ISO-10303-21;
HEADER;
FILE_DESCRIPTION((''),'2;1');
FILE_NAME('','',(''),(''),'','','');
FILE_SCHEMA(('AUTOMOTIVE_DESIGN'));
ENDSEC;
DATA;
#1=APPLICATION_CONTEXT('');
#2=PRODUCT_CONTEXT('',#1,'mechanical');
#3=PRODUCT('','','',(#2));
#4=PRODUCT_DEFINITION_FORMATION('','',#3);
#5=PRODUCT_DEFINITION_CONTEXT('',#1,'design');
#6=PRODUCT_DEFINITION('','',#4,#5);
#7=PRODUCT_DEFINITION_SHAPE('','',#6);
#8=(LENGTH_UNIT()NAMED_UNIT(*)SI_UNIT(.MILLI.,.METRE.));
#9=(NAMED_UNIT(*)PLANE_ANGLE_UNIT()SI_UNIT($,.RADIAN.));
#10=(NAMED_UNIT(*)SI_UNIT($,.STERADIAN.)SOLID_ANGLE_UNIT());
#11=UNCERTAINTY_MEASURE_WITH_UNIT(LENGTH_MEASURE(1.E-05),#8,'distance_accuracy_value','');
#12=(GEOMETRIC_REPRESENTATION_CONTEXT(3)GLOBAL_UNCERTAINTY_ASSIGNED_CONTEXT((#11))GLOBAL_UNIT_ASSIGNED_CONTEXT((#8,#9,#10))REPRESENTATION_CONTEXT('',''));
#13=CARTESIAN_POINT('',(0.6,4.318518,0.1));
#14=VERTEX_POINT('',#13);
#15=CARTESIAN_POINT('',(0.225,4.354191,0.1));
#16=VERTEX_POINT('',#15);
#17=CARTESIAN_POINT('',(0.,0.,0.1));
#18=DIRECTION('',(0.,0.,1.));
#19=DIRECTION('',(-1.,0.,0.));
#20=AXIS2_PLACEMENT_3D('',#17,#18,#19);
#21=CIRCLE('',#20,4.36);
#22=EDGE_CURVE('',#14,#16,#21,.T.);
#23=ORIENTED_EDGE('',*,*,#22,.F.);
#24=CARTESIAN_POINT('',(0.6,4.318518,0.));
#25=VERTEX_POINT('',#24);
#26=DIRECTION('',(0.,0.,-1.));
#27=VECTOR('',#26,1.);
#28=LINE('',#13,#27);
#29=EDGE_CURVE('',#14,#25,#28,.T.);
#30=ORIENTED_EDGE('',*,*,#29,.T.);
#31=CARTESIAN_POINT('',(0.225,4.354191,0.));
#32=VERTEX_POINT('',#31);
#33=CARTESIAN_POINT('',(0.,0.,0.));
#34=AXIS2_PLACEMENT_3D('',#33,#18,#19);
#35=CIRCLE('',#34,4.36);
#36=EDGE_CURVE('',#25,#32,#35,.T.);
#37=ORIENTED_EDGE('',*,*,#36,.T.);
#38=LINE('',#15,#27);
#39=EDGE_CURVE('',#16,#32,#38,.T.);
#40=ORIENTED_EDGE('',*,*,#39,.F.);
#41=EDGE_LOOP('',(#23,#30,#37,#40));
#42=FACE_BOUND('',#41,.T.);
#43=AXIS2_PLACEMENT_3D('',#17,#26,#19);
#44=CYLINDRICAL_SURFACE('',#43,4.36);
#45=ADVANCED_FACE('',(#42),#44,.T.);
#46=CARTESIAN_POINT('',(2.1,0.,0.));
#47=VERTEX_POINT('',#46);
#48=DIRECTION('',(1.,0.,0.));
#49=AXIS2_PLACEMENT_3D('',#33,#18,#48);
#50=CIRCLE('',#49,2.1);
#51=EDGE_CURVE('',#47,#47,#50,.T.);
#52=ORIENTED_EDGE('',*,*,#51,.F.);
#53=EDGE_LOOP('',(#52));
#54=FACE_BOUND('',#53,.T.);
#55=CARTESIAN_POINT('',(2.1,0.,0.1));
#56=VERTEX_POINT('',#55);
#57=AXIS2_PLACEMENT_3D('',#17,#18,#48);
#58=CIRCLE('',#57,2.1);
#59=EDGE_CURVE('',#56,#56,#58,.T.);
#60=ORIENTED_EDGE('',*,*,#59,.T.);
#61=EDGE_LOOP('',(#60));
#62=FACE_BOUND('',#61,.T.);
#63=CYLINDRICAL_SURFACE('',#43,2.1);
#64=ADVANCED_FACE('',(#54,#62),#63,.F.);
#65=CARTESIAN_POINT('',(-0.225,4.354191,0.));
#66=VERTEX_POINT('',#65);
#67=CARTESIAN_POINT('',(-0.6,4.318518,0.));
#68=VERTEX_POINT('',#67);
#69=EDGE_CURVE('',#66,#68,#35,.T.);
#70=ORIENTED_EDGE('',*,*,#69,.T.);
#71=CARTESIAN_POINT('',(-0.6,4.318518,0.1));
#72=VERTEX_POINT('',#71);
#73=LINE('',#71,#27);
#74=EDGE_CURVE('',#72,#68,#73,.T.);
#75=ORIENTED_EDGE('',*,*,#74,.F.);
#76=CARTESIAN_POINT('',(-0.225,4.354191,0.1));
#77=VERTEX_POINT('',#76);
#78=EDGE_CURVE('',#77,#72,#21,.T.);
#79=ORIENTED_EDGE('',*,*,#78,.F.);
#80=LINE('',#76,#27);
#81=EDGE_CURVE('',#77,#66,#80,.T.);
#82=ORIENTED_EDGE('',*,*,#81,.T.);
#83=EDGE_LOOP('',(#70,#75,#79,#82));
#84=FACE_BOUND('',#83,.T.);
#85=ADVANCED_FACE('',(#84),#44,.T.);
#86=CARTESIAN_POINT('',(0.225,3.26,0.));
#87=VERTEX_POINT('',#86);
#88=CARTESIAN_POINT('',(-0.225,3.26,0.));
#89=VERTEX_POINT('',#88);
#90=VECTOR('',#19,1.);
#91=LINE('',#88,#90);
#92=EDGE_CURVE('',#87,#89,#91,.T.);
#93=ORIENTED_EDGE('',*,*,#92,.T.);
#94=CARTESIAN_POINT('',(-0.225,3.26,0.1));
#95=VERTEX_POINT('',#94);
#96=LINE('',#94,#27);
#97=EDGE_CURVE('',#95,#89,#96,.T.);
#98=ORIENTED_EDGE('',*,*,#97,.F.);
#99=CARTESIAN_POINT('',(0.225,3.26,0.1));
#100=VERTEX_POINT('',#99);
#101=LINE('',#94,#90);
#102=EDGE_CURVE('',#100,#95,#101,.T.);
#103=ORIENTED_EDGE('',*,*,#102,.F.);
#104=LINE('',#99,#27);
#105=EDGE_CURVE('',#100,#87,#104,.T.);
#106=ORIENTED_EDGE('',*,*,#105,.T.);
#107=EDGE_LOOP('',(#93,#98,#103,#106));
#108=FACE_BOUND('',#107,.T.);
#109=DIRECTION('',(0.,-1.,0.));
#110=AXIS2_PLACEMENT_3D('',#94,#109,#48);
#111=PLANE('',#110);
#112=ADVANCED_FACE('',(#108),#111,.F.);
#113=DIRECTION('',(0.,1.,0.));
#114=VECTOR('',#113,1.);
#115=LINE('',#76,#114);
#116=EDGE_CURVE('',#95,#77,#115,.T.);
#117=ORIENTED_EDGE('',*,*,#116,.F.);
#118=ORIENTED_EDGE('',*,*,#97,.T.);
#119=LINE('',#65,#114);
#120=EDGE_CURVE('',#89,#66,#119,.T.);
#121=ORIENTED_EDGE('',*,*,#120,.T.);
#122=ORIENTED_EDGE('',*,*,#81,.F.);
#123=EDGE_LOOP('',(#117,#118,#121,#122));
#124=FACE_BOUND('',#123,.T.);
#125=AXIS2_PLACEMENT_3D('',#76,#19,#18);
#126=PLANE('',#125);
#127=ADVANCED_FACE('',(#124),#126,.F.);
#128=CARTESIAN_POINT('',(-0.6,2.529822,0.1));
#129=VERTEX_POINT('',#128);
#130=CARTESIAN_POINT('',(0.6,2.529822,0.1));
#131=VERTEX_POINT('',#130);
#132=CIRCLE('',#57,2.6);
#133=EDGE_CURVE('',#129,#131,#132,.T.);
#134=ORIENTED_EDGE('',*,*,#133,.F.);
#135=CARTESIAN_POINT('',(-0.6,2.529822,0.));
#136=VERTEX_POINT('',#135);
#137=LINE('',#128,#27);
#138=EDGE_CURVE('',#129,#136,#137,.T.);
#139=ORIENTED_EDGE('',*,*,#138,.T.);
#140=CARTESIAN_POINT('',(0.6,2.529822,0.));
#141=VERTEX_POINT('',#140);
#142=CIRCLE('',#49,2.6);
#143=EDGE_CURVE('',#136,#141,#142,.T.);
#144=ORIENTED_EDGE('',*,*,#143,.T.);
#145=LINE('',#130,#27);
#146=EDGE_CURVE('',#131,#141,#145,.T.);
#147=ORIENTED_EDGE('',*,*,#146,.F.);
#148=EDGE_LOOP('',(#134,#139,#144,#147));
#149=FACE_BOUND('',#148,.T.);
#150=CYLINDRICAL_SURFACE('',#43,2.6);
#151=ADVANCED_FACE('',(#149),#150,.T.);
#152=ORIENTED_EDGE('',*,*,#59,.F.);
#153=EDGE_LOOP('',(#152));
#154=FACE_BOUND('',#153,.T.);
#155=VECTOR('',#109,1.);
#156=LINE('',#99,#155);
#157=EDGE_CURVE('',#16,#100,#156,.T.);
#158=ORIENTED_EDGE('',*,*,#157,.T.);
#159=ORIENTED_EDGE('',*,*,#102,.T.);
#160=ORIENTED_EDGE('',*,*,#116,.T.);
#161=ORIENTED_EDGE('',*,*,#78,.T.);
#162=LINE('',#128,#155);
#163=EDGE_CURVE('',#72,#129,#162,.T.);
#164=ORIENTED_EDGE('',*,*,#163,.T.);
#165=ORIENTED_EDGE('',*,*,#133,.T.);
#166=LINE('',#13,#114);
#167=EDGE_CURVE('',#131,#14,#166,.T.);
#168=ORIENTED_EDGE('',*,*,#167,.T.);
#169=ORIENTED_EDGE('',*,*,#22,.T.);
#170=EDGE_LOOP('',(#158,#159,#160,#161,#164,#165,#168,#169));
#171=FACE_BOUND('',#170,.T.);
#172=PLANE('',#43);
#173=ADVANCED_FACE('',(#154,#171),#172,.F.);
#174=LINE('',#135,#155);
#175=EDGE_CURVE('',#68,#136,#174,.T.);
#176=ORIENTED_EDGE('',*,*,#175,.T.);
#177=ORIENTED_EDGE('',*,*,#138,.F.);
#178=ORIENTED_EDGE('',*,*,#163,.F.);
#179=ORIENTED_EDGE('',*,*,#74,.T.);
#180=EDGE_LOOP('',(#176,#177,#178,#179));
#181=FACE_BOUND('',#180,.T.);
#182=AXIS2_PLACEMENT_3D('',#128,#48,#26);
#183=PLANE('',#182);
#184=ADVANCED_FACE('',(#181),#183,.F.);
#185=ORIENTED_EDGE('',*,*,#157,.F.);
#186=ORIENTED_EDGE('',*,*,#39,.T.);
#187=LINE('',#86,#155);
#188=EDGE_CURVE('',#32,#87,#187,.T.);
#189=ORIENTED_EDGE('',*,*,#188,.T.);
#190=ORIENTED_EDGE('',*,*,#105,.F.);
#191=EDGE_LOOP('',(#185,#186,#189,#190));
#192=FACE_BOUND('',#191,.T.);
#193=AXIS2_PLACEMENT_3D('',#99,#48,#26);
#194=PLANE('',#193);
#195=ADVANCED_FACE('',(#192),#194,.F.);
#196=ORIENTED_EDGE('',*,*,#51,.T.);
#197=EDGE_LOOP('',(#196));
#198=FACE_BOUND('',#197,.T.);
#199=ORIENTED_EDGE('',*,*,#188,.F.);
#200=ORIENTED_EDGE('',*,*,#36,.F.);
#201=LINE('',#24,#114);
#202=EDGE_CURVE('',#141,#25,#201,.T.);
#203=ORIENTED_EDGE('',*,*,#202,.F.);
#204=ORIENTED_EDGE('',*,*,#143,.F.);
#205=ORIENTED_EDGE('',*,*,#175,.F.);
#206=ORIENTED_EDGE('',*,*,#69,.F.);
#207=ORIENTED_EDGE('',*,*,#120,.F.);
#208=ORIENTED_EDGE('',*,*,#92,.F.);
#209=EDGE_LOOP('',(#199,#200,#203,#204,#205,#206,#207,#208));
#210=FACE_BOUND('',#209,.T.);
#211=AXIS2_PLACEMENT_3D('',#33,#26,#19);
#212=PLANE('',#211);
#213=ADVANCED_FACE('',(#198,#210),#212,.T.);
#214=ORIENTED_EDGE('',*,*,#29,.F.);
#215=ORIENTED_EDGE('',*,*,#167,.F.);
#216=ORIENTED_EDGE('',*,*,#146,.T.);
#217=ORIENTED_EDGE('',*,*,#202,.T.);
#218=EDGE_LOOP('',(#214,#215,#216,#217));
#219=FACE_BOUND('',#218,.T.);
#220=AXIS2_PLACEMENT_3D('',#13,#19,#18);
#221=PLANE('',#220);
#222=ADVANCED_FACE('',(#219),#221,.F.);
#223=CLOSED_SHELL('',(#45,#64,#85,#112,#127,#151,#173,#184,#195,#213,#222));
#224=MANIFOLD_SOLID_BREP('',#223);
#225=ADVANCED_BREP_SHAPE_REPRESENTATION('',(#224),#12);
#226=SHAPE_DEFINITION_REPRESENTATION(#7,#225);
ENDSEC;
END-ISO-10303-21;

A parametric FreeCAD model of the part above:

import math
import FreeCAD as App
import Part
import Sketcher

V = App.Vector
Q = App.Units.Quantity

doc = App.newDocument("Part")
body = doc.addObject("PartDesign::Body", "Body")

sketch1 = doc.addObject("Sketcher::SketchObject", "Sketch")
body.addObject(sketch1)
sketch1.AttachmentSupport = (doc.XY_Plane, [""])
sketch1.MapMode = "FlatFace"
sketch1.addGeometry([
    Part.LineSegment(V(-0.6, 4.318518, 0), V(-0.6, 2.529822, 0)),
    Part.ArcOfCircle(Part.Circle(V(0, 0, 0), V(0, 0, 1), 2.6), math.radians(103.342364), math.radians(436.657636)),
    Part.LineSegment(V(0.6, 2.529822, 0), V(0.6, 4.318518, 0)),
    Part.ArcOfCircle(Part.Circle(V(0, 0.000001, 0), V(0, 0, 1), 4.359999), math.radians(82.090158), math.radians(87.041909)),
    Part.LineSegment(V(0.225, 4.354191, 0), V(0.225, 3.26, 0)),
    Part.LineSegment(V(0.225, 3.26, 0), V(-0.225, 3.26, 0)),
    Part.LineSegment(V(-0.225, 3.26, 0), V(-0.225, 4.354191, 0)),
    Part.ArcOfCircle(Part.Circle(V(0, 0.000001, 0), V(0, 0, 1), 4.359999), math.radians(92.958091), math.radians(97.909842)),
    Part.Circle(V(0, 0, 0), V(0, 0, 1), 2.1),
], False)
sketch1.addConstraint([
    Sketcher.Constraint("Coincident", 0, 2, 1, 1),
    Sketcher.Constraint("Coincident", 1, 2, 2, 1),
    Sketcher.Constraint("Coincident", 2, 2, 3, 1),
    Sketcher.Constraint("Coincident", 3, 2, 4, 1),
    Sketcher.Constraint("Coincident", 4, 2, 5, 1),
    Sketcher.Constraint("Coincident", 5, 2, 6, 1),
    Sketcher.Constraint("Coincident", 6, 2, 7, 1),
    Sketcher.Constraint("Coincident", 7, 2, 0, 1),
    Sketcher.Constraint("Vertical", 0),
    Sketcher.Constraint("Vertical", 2),
    Sketcher.Constraint("Vertical", 4),
    Sketcher.Constraint("Horizontal", 5),
    Sketcher.Constraint("Vertical", 6),
    Sketcher.Constraint("Coincident", 1, 3, -1, 1),
    Sketcher.Constraint("Coincident", 3, 3, -1, 1),
    Sketcher.Constraint("Coincident", 7, 3, -1, 1),
    Sketcher.Constraint("Coincident", 8, 3, -1, 1),
    Sketcher.Constraint("Equal", 3, 7),
    Sketcher.Constraint("Horizontal", 0, 2, 1, 2),
    Sketcher.Constraint("Horizontal", 3, 2, 6, 2),
    Sketcher.Constraint("Diameter", 8, Q("4.2 mm")),
    Sketcher.Constraint("Radius", 1, Q("2.6 mm")),
    Sketcher.Constraint("Radius", 3, Q("4.359999 mm")),
    Sketcher.Constraint("DistanceX", 5, 2, 5, 1, Q("0.45 mm")),
    Sketcher.Constraint("DistanceX", 0, 2, -1, 1, Q("0.6 mm")),
    Sketcher.Constraint("DistanceY", -1, 1, 4, 2, Q("3.26 mm")),
])
pad1 = doc.addObject("PartDesign::Pad", "Pad")
body.addObject(pad1)
pad1.Profile = sketch1
pad1.Length = 0.1

doc.recompute()
